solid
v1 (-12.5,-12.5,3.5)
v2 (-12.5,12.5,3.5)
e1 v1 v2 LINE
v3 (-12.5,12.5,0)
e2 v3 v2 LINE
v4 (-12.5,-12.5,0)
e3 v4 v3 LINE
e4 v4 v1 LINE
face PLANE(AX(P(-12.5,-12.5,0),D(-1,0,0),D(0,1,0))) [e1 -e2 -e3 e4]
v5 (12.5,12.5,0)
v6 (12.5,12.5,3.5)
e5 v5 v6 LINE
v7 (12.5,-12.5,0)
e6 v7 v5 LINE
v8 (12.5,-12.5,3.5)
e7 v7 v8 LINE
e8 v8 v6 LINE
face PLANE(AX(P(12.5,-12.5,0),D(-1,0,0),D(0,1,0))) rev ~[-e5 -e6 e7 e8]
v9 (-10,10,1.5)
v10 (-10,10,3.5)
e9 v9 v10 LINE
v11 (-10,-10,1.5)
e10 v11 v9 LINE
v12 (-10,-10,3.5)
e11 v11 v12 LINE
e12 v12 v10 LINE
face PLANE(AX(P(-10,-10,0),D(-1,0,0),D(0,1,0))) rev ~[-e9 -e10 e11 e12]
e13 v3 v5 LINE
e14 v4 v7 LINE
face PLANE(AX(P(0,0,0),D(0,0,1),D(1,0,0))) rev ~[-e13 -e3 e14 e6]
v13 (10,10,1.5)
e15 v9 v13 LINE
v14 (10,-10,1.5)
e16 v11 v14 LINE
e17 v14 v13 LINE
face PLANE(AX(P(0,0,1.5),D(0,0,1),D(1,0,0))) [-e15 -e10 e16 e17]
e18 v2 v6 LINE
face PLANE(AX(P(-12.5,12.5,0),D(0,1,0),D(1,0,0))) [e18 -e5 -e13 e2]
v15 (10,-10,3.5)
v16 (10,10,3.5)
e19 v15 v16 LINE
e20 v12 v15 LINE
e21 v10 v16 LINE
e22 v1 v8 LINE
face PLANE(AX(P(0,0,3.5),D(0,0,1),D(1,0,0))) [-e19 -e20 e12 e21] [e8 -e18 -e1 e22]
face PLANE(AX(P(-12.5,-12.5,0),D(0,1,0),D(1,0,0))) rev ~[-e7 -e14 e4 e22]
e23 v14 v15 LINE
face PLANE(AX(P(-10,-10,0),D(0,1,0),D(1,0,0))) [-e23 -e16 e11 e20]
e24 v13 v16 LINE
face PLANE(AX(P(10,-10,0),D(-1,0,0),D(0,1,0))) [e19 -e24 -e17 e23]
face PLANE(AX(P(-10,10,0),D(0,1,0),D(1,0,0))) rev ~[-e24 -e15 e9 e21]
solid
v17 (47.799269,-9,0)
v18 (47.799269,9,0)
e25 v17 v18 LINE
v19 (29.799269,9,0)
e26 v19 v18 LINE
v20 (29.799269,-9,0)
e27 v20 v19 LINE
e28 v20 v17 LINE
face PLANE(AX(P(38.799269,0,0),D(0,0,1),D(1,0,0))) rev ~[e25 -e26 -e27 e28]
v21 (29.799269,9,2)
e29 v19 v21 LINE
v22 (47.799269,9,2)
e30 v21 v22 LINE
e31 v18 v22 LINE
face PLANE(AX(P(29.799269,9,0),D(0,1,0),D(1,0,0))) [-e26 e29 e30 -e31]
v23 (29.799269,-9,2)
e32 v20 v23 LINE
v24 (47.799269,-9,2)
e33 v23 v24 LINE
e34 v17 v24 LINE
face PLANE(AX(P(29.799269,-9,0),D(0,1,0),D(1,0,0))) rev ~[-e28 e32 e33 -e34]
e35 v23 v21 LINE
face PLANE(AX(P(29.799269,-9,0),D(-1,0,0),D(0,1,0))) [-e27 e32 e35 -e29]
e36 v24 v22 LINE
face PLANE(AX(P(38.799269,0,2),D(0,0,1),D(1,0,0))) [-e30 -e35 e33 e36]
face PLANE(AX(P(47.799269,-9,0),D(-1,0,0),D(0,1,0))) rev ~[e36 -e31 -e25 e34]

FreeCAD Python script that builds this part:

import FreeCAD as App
import Part
import Sketcher

V = App.Vector


def add_polygon(sketch, points):
    """Adds a closed chain of lines whose ends are joined by coincident constraints."""
    first, n = sketch.GeometryCount, len(points)
    for a, b in zip(points, points[1:] + points[:1]):
        sketch.addGeometry(Part.LineSegment(App.Vector(*a, 0), App.Vector(*b, 0)), False)
    for i in range(n):
        sketch.addConstraint(Sketcher.Constraint("Coincident", first + i, 2, first + (i + 1) % n, 1))

doc = App.newDocument("Part")
body = doc.addObject("PartDesign::Body", "Body")

sketch1 = body.newObject("Sketcher::SketchObject", "Sketch")
sketch1.AttachmentSupport = (doc.getObject("XY_Plane"), [""])
sketch1.MapMode = "FlatFace"
add_polygon(sketch1, [(-12, 12), (-12, -12), (12, -12), (12, 12)])
add_polygon(sketch1, [(10, -10), (-10, -10), (-10, 10), (10, 10)])
sketch1.addConstraint(Sketcher.Constraint("Vertical", 0))
sketch1.addConstraint(Sketcher.Constraint("Horizontal", 1))
sketch1.addConstraint(Sketcher.Constraint("Vertical", 2))
sketch1.addConstraint(Sketcher.Constraint("Horizontal", 3))
sketch1.addConstraint(Sketcher.Constraint("Horizontal", 4))
sketch1.addConstraint(Sketcher.Constraint("Vertical", 5))
sketch1.addConstraint(Sketcher.Constraint("Horizontal", 6))
sketch1.addConstraint(Sketcher.Constraint("Vertical", 7))
sketch1.addConstraint(Sketcher.Constraint("Symmetric", 0, 2, 2, 2, -1, 1))
sketch1.addConstraint(Sketcher.Constraint("Symmetric", 4, 2, 6, 2, -1, 1))
sketch1.addConstraint(Sketcher.Constraint("Equal", 3, 0))
sketch1.addConstraint(Sketcher.Constraint("Equal", 6, 5))
sketch1.addConstraint(Sketcher.Constraint("DistanceX", 1, 1, 1, 2, 25.0))
sketch1.addConstraint(Sketcher.Constraint("DistanceX", 4, 2, 4, 1, 20.0))
pad1 = body.newObject("PartDesign::Pad", "Pad")
pad1.Profile = sketch1
pad1.Length = 3.5

sketch2 = body.newObject("Sketcher::SketchObject", "Sketch001")
sketch2.AttachmentSupport = (doc.getObject("XY_Plane"), [""])
sketch2.MapMode = "FlatFace"
add_polygon(sketch2, [(-10, 10), (-10, -10), (10, -10), (10, 10)])
sketch2.addConstraint(Sketcher.Constraint("Vertical", 0))
sketch2.addConstraint(Sketcher.Constraint("Horizontal", 1))
sketch2.addConstraint(Sketcher.Constraint("Vertical", 2))
sketch2.addConstraint(Sketcher.Constraint("Horizontal", 3))
sketch2.addConstraint(Sketcher.Constraint("Symmetric", 0, 2, 2, 2, -1, 1))
sketch2.addConstraint(Sketcher.Constraint("Equal", 3, 0))
sketch2.addConstraint(Sketcher.Constraint("DistanceX", 1, 1, 1, 2, 20.0))
pad2 = body.newObject("PartDesign::Pad", "Pad001")
pad2.Profile = sketch2
pad2.Length = 1.5
body2 = doc.addObject("PartDesign::Body", "Body001")

sketch3 = body2.newObject("Sketcher::SketchObject", "Sketch002")
sketch3.AttachmentSupport = (doc.getObject("XY_Plane001"), [""])
sketch3.MapMode = "FlatFace"
add_polygon(sketch3, [(30, 9), (30, -9), (48, -9), (48, 9)])
sketch3.addConstraint(Sketcher.Constraint("Vertical", 0))
sketch3.addConstraint(Sketcher.Constraint("Horizontal", 1))
sketch3.addConstraint(Sketcher.Constraint("Vertical", 2))
sketch3.addConstraint(Sketcher.Constraint("Horizontal", 3))
sketch3.addConstraint(Sketcher.Constraint("Equal", 3, 0))
sketch3.addConstraint(Sketcher.Constraint("DistanceX", 1, 1, 1, 2, 18.0))
sketch3.addConstraint(Sketcher.Constraint("DistanceY", 0, 2, -1, 1, 9.0))
sketch3.addConstraint(Sketcher.Constraint("DistanceX", -1, 1, 0, 2, 29.799269))
pad3 = body2.newObject("PartDesign::Pad", "Pad002")
pad3.Profile = sketch3
pad3.Length = 2

doc.recompute()
